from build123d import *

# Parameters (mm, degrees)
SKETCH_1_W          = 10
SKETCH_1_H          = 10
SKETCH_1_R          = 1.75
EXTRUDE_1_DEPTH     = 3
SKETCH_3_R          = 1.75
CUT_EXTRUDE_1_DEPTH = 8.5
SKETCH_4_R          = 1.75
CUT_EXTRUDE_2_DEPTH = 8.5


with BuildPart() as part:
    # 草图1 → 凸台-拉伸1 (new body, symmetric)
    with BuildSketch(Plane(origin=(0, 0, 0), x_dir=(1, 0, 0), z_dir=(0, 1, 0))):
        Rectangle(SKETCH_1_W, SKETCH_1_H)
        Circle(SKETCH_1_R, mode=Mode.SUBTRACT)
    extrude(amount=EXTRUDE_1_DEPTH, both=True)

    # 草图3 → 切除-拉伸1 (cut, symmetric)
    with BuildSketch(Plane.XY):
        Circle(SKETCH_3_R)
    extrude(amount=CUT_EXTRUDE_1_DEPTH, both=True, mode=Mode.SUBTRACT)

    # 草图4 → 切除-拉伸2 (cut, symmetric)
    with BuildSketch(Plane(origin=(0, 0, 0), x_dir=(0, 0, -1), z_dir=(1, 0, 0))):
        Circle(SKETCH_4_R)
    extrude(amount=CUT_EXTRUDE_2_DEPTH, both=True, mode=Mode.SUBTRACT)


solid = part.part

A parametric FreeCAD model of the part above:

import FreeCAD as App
import Part
import Sketcher

V = App.Vector
Q = App.Units.Quantity

doc = App.newDocument("Part")
body = doc.addObject("PartDesign::Body", "Body")

sketch1 = body.newObject("Sketcher::SketchObject", "Sketch")
sketch1.AttachmentSupport = (doc.getObject("XZ_Plane"), [""])
sketch1.MapMode = "FlatFace"
sketch1.addGeometry([
    Part.LineSegment(V(-5, -5, 0), V(-5, 5, 0)),
    Part.LineSegment(V(-5, 5, 0), V(5, 5, 0)),
    Part.LineSegment(V(5, 5, 0), V(5, -5, 0)),
    Part.LineSegment(V(5, -5, 0), V(-5, -5, 0)),
    Part.Circle(V(0, 0, 0), V(0, 0, 1), 1.75),
], False)
sketch1.addConstraint([
    Sketcher.Constraint("Coincident", 0, 2, 1, 1),
    Sketcher.Constraint("Coincident", 1, 2, 2, 1),
    Sketcher.Constraint("Coincident", 2, 2, 3, 1),
    Sketcher.Constraint("Coincident", 3, 2, 0, 1),
    Sketcher.Constraint("Vertical", 0),
    Sketcher.Constraint("Horizontal", 1),
    Sketcher.Constraint("Vertical", 2),
    Sketcher.Constraint("Horizontal", 3),
    Sketcher.Constraint("Coincident", 4, 3, -1, 1),
    Sketcher.Constraint("Symmetric", 0, 2, 2, 2, -1, 1),
    Sketcher.Constraint("Equal", 3, 0),
    Sketcher.Constraint("Diameter", 4, Q("3.5 mm")),
    Sketcher.Constraint("DistanceX", 1, 1, 1, 2, Q("10 mm")),
])
pad1 = body.newObject("PartDesign::Pad", "Pad")
pad1.Profile = sketch1
pad1.Length = 6
pad1.Midplane = True

sketch2 = body.newObject("Sketcher::SketchObject", "Sketch001")
sketch2.AttachmentSupport = (doc.getObject("XY_Plane"), [""])
sketch2.MapMode = "FlatFace"
sketch2.addGeometry(Part.Circle(V(0, 0, 0), V(0, 0, 1), 1.75), False)
sketch2.addConstraint([
    Sketcher.Constraint("Coincident", 0, 3, -1, 1),
    Sketcher.Constraint("Diameter", 0, Q("3.5 mm")),
])
pocket1 = body.newObject("PartDesign::Pocket", "Pocket")
pocket1.Profile = sketch2
pocket1.Length = 17
pocket1.Midplane = True

sketch3 = body.newObject("Sketcher::SketchObject", "Sketch002")
sketch3.AttachmentSupport = (doc.getObject("YZ_Plane"), [""])
sketch3.MapMode = "FlatFace"
sketch3.addGeometry(Part.Circle(V(0, 0, 0), V(0, 0, 1), 1.75), False)
sketch3.addConstraint([
    Sketcher.Constraint("Coincident", 0, 3, -1, 1),
    Sketcher.Constraint("Diameter", 0, Q("3.5 mm")),
])
pocket2 = body.newObject("PartDesign::Pocket", "Pocket001")
pocket2.Profile = sketch3
pocket2.Length = 17
pocket2.Midplane = True

doc.recompute()
